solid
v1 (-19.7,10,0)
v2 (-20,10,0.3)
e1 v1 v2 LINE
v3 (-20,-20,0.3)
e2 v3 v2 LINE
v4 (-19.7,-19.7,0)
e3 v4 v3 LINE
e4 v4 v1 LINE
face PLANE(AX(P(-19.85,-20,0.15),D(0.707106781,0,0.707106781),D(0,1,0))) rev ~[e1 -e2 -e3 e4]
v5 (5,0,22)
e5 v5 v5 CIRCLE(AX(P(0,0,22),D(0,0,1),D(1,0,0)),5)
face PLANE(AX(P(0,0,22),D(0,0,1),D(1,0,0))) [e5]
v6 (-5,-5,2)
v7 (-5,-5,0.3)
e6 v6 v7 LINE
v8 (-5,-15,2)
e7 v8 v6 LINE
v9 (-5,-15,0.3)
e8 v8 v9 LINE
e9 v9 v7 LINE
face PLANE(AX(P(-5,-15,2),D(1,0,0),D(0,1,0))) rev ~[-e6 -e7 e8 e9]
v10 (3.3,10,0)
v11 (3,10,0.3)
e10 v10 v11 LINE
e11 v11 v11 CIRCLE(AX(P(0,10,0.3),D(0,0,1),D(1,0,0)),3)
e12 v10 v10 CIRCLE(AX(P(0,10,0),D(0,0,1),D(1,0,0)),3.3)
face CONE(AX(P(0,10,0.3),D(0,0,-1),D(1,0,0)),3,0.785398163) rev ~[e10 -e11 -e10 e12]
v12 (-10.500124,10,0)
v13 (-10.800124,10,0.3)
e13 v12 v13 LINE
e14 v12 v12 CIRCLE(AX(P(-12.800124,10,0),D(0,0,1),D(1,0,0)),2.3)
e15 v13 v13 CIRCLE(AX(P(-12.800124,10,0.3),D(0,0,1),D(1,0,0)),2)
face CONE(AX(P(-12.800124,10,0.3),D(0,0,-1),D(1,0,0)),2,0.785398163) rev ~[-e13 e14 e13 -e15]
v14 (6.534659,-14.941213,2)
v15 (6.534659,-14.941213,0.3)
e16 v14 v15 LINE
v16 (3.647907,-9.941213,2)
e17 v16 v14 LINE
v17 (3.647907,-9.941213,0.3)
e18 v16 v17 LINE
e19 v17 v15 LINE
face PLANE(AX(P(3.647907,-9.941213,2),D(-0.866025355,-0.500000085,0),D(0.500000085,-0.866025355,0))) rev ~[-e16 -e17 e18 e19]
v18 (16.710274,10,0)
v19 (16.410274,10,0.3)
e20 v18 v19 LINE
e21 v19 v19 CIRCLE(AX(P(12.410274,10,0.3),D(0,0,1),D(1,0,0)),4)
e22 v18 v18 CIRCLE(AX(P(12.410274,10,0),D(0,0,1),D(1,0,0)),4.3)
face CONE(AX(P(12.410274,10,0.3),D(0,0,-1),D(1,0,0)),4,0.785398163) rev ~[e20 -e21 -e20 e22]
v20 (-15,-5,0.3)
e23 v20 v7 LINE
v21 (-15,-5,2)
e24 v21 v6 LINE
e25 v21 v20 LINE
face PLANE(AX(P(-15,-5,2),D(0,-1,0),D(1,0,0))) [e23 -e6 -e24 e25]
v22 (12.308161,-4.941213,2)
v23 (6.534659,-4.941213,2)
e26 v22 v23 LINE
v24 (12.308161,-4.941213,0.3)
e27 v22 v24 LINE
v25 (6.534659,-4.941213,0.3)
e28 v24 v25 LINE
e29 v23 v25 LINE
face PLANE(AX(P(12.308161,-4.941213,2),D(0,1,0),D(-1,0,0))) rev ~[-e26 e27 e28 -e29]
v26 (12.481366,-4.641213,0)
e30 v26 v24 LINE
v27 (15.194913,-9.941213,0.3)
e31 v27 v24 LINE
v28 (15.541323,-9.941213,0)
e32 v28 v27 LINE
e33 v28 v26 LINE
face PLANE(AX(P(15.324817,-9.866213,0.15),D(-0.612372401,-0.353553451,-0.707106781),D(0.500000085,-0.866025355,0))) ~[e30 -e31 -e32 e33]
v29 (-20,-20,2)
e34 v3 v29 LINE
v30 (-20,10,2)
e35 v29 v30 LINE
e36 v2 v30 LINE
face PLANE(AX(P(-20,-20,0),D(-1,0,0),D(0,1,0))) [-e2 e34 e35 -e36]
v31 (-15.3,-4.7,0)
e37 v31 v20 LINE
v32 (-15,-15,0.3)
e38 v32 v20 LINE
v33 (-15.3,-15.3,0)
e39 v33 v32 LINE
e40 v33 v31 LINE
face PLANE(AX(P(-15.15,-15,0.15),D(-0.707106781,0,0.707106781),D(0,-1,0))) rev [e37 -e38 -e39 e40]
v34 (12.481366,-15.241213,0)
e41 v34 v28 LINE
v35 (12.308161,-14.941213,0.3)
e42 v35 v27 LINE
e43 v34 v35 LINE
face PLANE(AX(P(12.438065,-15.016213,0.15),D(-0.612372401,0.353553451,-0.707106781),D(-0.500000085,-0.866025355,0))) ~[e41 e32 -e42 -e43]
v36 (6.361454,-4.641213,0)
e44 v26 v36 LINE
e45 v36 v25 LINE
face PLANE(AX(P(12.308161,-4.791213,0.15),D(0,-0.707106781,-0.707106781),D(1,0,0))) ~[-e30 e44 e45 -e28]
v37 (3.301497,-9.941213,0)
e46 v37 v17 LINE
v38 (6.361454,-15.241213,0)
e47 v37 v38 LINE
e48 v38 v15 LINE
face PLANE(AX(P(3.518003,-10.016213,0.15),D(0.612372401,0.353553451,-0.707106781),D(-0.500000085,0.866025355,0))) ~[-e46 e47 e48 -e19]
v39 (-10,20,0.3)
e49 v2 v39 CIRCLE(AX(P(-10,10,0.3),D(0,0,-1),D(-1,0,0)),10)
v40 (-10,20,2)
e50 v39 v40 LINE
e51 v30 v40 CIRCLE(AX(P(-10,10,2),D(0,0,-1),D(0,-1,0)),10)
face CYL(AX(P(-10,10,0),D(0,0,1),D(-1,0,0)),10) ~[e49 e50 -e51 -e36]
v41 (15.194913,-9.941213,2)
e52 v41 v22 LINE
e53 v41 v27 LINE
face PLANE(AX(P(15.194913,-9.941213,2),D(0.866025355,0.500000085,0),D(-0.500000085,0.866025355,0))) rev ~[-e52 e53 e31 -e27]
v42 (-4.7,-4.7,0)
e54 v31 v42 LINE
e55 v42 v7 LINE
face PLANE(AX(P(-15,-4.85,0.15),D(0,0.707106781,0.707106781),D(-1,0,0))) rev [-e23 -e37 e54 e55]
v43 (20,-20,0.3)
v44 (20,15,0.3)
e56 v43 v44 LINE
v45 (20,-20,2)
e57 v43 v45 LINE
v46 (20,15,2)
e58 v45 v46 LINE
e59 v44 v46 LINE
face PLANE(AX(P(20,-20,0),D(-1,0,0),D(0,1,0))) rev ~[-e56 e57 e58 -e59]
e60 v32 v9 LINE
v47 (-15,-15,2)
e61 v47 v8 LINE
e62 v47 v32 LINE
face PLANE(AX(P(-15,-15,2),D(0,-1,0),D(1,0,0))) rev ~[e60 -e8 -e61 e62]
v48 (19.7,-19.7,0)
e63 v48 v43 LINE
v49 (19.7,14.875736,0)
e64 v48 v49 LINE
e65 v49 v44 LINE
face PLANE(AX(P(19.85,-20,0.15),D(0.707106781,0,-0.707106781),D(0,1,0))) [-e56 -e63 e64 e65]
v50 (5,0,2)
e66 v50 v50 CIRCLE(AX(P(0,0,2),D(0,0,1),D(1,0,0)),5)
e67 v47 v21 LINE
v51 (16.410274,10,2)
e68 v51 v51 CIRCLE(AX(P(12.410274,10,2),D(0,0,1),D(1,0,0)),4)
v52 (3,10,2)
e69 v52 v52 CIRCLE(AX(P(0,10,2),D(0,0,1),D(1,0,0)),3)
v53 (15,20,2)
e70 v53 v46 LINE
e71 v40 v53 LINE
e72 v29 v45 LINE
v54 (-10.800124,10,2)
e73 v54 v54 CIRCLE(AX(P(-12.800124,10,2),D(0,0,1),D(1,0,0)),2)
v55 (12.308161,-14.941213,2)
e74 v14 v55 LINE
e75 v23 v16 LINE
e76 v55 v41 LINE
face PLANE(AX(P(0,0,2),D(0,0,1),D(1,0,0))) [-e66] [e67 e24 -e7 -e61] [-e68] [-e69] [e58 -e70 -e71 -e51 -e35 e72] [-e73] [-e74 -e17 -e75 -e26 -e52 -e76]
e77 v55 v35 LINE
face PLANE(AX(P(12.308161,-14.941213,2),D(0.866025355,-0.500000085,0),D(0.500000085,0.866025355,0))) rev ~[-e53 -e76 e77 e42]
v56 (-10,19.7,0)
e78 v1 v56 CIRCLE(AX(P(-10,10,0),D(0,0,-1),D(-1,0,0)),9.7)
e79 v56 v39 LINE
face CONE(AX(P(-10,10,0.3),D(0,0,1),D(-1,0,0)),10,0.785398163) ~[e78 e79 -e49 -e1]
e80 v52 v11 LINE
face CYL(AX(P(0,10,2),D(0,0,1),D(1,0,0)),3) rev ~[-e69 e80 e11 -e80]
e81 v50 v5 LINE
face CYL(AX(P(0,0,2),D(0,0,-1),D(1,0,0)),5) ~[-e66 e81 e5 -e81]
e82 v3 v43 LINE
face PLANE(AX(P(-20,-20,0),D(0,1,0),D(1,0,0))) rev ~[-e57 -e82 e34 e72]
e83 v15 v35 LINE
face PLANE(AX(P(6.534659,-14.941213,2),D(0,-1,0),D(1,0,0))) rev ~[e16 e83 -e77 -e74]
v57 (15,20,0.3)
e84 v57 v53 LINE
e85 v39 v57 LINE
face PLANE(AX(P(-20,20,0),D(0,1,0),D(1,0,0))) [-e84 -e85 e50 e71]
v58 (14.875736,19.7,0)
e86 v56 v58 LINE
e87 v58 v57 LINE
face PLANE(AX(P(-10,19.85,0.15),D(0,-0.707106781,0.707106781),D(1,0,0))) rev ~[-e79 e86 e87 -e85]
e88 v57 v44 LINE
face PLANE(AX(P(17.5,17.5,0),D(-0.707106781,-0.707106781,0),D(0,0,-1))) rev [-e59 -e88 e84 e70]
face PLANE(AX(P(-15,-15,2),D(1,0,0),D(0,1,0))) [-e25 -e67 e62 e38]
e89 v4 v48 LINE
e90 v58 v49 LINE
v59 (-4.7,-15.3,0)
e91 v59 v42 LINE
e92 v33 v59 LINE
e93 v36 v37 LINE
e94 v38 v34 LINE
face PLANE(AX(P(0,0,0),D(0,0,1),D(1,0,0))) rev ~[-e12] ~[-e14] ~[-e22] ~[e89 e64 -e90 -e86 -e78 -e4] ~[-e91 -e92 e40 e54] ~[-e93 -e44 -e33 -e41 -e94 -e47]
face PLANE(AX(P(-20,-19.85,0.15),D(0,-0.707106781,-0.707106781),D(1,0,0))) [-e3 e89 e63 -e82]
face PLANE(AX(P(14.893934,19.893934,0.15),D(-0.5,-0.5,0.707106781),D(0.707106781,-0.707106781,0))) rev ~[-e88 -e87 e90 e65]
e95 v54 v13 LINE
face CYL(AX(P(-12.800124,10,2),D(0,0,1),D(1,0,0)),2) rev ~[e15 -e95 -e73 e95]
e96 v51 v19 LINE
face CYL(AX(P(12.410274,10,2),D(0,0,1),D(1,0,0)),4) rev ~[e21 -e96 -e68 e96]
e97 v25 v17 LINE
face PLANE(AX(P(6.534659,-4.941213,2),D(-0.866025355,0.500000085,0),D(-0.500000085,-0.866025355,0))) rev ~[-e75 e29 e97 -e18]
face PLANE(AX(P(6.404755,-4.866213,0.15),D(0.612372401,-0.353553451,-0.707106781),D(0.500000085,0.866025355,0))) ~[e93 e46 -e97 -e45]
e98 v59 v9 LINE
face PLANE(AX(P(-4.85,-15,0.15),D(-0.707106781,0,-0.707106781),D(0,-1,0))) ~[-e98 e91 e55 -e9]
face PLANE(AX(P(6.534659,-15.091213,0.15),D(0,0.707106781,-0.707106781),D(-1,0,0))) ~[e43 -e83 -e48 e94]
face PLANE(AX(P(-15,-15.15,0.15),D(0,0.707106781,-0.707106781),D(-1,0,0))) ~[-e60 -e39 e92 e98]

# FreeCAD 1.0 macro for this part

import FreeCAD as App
import Part
import Sketcher
Q = App.Units.Quantity


def edges_at(feature, points):
    """Names of the edges that pass closest to the given points."""
    edges = feature.Shape.Edges
    near = lambda p: min(range(len(edges)), key=lambda i: edges[i].distToShape(Part.Vertex(*p))[0])
    return sorted({f"Edge{near(p) + 1}" for p in points})

doc = App.newDocument("Part")
params = doc.addObject("Spreadsheet::Sheet", "Params")
for row, (alias, value) in enumerate([
    ("sketch1_width", "40 mm"),
    ("pad1_length", "2 mm"),
    ("sketch2_diameter", "4 mm"),
    ("sketch2_diameter2", "6 mm"),
    ("sketch2_diameter3", "8 mm"),
    ("sketch2_width", "10 mm"),
    ("fillet_radius", "10 mm"),
    ("chamfer_size", "5 mm"),
    ("sketch3_diameter", "10 mm"),
    ("pad2_length", "20 mm"),
    ("chamfer2_size", "0.3 mm"),
], start=1):
    params.set(f"A{row}", alias)
    params.set(f"B{row}", "=" + value)
    params.setAlias(f"B{row}", alias)

body = doc.addObject("PartDesign::Body", "Body")

# Sketch on XY plane
sketch1 = doc.addObject("Sketcher::SketchObject", "Sketch")
body.addObject(sketch1)
sketch1.AttachmentSupport = (doc.XY_Plane, [""])
sketch1.MapMode = "FlatFace"
sketch1.addGeometry([
    Part.LineSegment(App.Vector(-20, 20, 0), App.Vector(-20, -20, 0)),
    Part.LineSegment(App.Vector(-20, -20, 0), App.Vector(20, -20, 0)),
    Part.LineSegment(App.Vector(20, -20, 0), App.Vector(20, 20, 0)),
    Part.LineSegment(App.Vector(20, 20, 0), App.Vector(-20, 20, 0)),
], False)
sketch1.addConstraint([
    Sketcher.Constraint("Coincident", 0, 2, 1, 1),
    Sketcher.Constraint("Coincident", 1, 2, 2, 1),
    Sketcher.Constraint("Coincident", 2, 2, 3, 1),
    Sketcher.Constraint("Coincident", 3, 2, 0, 1),
    Sketcher.Constraint("Vertical", 0),
    Sketcher.Constraint("Horizontal", 1),
    Sketcher.Constraint("Vertical", 2),
    Sketcher.Constraint("Horizontal", 3),
    Sketcher.Constraint("Symmetric", 0, 2, 2, 2, -1, 1),
    Sketcher.Constraint("Equal", 3, 0),
    Sketcher.Constraint("DistanceX", 1, 1, 1, 2, 40.0),
])
sketch1.setExpression("Constraints[10]", "Params.sketch1_width")
pad1 = doc.addObject("PartDesign::Pad", "Pad")
body.addObject(pad1)
pad1.Profile = sketch1
pad1.setExpression("Length", "Params.pad1_length")

# Sketch on XY plane
sketch2 = doc.addObject("Sketcher::SketchObject", "Sketch001")
body.addObject(sketch2)
sketch2.AttachmentSupport = (doc.XY_Plane, [""])
sketch2.MapMode = "FlatFace"
sketch2.AttachmentOffset = App.Placement(App.Vector(0, 0, 2), App.Rotation())
sketch2.addGeometry([
    Part.Circle(App.Vector(-12.800124, 10, 0), App.Vector(0, 0, 1), 2),  # 0
    Part.Circle(App.Vector(0, 10, 0), App.Vector(0, 0, 1), 3),  # 1
    Part.Circle(App.Vector(12.410274, 10, 0), App.Vector(0, 0, 1), 4),  # 2
    Part.LineSegment(App.Vector(-15, -5, 0), App.Vector(-15, -15, 0)),  # 3
    Part.LineSegment(App.Vector(-15, -15, 0), App.Vector(-5, -15, 0)),  # 4
    Part.LineSegment(App.Vector(-5, -15, 0), App.Vector(-5, -5, 0)),  # 5
    Part.LineSegment(App.Vector(-5, -5, 0), App.Vector(-15, -5, 0)),  # 6
    Part.LineSegment(App.Vector(12.308161, -4.941213, 0), App.Vector(6.534659, -4.941213, 0)),  # 7
    Part.LineSegment(App.Vector(6.534659, -4.941213, 0), App.Vector(3.647907, -9.941213, 0)),  # 8
    Part.LineSegment(App.Vector(3.647907, -9.941213, 0), App.Vector(6.534659, -14.941213, 0)),  # 9
    Part.LineSegment(App.Vector(6.534659, -14.941213, 0), App.Vector(12.308161, -14.941213, 0)),  # 10
    Part.LineSegment(App.Vector(12.308161, -14.941213, 0), App.Vector(15.194913, -9.941213, 0)),  # 11
    Part.LineSegment(App.Vector(15.194913, -9.941213, 0), App.Vector(12.308161, -4.941213, 0)),  # 12
], False)
sketch2.addConstraint([
    Sketcher.Constraint("Coincident", 3, 2, 4, 1),
    Sketcher.Constraint("Coincident", 4, 2, 5, 1),
    Sketcher.Constraint("Coincident", 5, 2, 6, 1),
    Sketcher.Constraint("Coincident", 6, 2, 3, 1),
    Sketcher.Constraint("Coincident", 7, 2, 8, 1),
    Sketcher.Constraint("Coincident", 8, 2, 9, 1),
    Sketcher.Constraint("Coincident", 9, 2, 10, 1),
    Sketcher.Constraint("Coincident", 10, 2, 11, 1),
    Sketcher.Constraint("Coincident", 11, 2, 12, 1),
    Sketcher.Constraint("Coincident", 12, 2, 7, 1),
    Sketcher.Constraint("Vertical", 3),
    Sketcher.Constraint("Horizontal", 4),
    Sketcher.Constraint("Vertical", 5),
    Sketcher.Constraint("Horizontal", 6),
    Sketcher.Constraint("Horizontal", 7),
    Sketcher.Constraint("Horizontal", 10),
    Sketcher.Constraint("PointOnObject", 1, 3, -2),
    Sketcher.Constraint("Parallel", 8, 11),
    Sketcher.Constraint("Parallel", 9, 12),
    Sketcher.Constraint("Horizontal", 0, 3, 1, 3),
    Sketcher.Constraint("Horizontal", 1, 3, 2, 3),
    Sketcher.Constraint("Horizontal", 8, 2, 11, 2),
    Sketcher.Constraint("Vertical", 7, 2, 9, 2),
    Sketcher.Constraint("Vertical", 10, 2, 12, 2),
    Sketcher.Constraint("Equal", 6, 3),
    Sketcher.Constraint("Diameter", 0, 4.0),
    Sketcher.Constraint("Diameter", 1, 6.0),
    Sketcher.Constraint("Diameter", 2, 8.0),
    Sketcher.Constraint("DistanceX", 4, 1, 4, 2, 10.0),
    Sketcher.Constraint("Angle", 8, Q("-120.000006 deg")),
    Sketcher.Constraint("DistanceY", -1, 1, 0, 3, 10.0),
    Sketcher.Constraint("DistanceX", 3, 2, -1, 1, 15.0),
    Sketcher.Constraint("DistanceY", 3, 2, -1, 1, 15.0),
    Sketcher.Constraint("DistanceY", 8, 2, 7, 2, 5.0),
    Sketcher.Constraint("DistanceX", 7, 2, 7, 1, 5.773502),
    Sketcher.Constraint("DistanceX", -1, 1, 7, 2, 6.534659),
    Sketcher.Constraint("DistanceX", 2, 3, 11, 2, 2.784639),
    Sketcher.Constraint("DistanceX", 0, 3, -1, 1, 12.800124),
    Sketcher.Constraint("DistanceY", 7, 2, -1, 1, 4.941213),
])
sketch2.setExpression("Constraints[25]", "Params.sketch2_diameter")
sketch2.setExpression("Constraints[26]", "Params.sketch2_diameter2")
sketch2.setExpression("Constraints[27]", "Params.sketch2_diameter3")
sketch2.setExpression("Constraints[28]", "Params.sketch2_width")
pocket1 = doc.addObject("PartDesign::Pocket", "Pocket")
body.addObject(pocket1)
pocket1.Profile = sketch2
pocket1.Type = "ThroughAll"
doc.recompute()

fillet = doc.addObject("PartDesign::Fillet", "Fillet")
body.addObject(fillet)
fillet.Base = (pocket1, edges_at(pocket1, [(-20, 20, 1)]))
fillet.setExpression("Radius", "Params.fillet_radius")
doc.recompute()

chamfer = doc.addObject("PartDesign::Chamfer", "Chamfer")
body.addObject(chamfer)
chamfer.Base = (fillet, edges_at(fillet, [(20, 20, 1)]))
chamfer.setExpression("Size", "Params.chamfer_size")

# Sketch on XY plane
sketch3 = doc.addObject("Sketcher::SketchObject", "Sketch002")
body.addObject(sketch3)
sketch3.AttachmentSupport = (doc.XY_Plane, [""])
sketch3.MapMode = "FlatFace"
sketch3.AttachmentOffset = App.Placement(App.Vector(0, 0, 2), App.Rotation())
sketch3.addGeometry(Part.Circle(App.Vector(0, 0, 0), App.Vector(0, 0, 1), 5), False)
sketch3.addConstraint([
    Sketcher.Constraint("Coincident", 0, 3, -1, 1),
    Sketcher.Constraint("Diameter", 0, 10.0),
])
sketch3.setExpression("Constraints[1]", "Params.sketch3_diameter")
pad2 = doc.addObject("PartDesign::Pad", "Pad001")
body.addObject(pad2)
pad2.Profile = sketch3
pad2.setExpression("Length", "Params.pad2_length")
doc.recompute()

chamfer2 = doc.addObject("PartDesign::Chamfer", "Chamfer001")
body.addObject(chamfer2)
chamfer2.Base = (pad2, edges_at(pad2, [
    (2.5, 20, 0),
    (17.5, 17.5, 0),
    (-17.071, 17.071, 0),
    (20, -2.5, 0),
    (-20, -5, 0),
    (0, -20, 0),
    (-10, -5, 0),
    (-15, -10, 0),
    (-10, -15, 0),
    (-5, -10, 0),
    (9.421, -4.941, 0),
    (5.091, -7.441, 0),
    (5.091, -12.441, 0),
    (9.421, -14.941, 0),
    (13.752, -12.441, 0),
    (13.752, -7.441, 0),
    (-14.8, 10, 0),
    (-3, 10, 0),
    (8.41, 10, 0),
]))
chamfer2.setExpression("Size", "Params.chamfer2_size")

doc.recompute()
